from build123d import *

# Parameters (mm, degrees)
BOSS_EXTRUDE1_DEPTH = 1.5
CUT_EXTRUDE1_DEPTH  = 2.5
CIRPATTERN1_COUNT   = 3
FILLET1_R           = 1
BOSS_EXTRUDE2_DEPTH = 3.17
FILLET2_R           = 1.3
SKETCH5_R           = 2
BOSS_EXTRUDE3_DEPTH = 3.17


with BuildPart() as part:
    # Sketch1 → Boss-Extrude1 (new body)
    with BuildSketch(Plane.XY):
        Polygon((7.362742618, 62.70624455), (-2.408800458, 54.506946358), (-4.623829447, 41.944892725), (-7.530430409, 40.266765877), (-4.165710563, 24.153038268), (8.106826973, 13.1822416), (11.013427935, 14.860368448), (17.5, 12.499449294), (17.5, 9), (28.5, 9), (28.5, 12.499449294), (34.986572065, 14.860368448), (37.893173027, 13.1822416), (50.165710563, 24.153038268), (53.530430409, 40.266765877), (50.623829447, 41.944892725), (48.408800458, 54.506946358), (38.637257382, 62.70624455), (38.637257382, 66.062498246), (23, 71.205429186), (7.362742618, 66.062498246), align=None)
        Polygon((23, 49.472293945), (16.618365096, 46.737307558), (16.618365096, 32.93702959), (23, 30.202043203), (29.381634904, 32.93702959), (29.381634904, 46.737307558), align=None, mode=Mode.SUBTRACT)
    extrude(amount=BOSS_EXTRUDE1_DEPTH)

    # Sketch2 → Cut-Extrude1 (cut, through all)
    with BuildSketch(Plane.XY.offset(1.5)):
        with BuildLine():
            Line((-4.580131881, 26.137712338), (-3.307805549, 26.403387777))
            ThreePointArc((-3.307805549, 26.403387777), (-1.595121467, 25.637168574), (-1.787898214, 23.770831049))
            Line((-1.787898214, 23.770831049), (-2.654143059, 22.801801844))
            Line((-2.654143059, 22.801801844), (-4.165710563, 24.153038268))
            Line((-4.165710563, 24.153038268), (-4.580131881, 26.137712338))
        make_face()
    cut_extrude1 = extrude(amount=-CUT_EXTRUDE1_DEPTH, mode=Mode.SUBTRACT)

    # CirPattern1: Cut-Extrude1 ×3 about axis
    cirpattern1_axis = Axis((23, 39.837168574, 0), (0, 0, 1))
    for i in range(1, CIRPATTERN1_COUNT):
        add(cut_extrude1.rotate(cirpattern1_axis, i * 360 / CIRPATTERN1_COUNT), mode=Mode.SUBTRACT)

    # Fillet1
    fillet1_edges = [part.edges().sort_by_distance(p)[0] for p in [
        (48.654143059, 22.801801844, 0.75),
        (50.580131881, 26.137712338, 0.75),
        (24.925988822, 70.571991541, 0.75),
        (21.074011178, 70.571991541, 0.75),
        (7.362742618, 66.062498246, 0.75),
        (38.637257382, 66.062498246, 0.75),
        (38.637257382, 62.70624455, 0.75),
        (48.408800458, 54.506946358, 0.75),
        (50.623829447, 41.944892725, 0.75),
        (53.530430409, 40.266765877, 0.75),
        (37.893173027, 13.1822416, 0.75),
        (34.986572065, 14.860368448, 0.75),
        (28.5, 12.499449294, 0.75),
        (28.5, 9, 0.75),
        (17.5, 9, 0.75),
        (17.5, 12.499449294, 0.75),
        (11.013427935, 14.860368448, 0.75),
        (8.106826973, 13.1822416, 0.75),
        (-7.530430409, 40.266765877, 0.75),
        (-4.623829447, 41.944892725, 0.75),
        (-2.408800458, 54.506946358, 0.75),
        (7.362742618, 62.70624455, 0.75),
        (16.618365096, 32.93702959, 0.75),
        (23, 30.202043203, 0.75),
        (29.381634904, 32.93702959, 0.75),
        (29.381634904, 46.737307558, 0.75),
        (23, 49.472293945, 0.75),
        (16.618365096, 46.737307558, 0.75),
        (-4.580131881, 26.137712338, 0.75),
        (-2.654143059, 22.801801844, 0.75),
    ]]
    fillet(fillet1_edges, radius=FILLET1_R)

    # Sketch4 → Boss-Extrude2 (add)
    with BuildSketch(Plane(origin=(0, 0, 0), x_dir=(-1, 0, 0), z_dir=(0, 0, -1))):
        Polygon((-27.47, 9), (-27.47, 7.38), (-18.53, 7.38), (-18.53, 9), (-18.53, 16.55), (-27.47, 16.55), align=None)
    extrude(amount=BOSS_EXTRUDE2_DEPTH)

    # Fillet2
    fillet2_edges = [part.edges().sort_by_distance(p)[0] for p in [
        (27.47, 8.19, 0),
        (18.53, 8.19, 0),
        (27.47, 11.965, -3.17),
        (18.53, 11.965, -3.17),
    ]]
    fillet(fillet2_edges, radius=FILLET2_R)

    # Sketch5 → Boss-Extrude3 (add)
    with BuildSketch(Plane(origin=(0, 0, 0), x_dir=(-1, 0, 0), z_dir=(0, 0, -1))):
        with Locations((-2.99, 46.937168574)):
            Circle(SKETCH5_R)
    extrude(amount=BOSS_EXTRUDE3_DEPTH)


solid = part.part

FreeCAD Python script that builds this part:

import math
import FreeCAD as App
import Part
import Sketcher

V = App.Vector
Q = App.Units.Quantity


def edges_at(feature, points):
    """Names of the edges that pass closest to the given points."""
    edges = feature.Shape.Edges
    near = lambda p: min(range(len(edges)), key=lambda i: edges[i].distToShape(Part.Vertex(*p))[0])
    return sorted({f"Edge{near(p) + 1}" for p in points})

doc = App.newDocument("Part")
body = doc.addObject("PartDesign::Body", "Body")

sketch1 = body.newObject("Sketcher::SketchObject", "Sketch")
sketch1.AttachmentSupport = (doc.getObject("XY_Plane"), [""])
sketch1.MapMode = "FlatFace"
sketch1.addGeometry(Part.LineSegment(V(7.362743, 62.706245, 0), V(-2.4088, 54.506946, 0)), False)
sketch1.addGeometry(Part.LineSegment(V(-2.4088, 54.506946, 0), V(-4.623829, 41.944893, 0)), False)
sketch1.addGeometry(Part.LineSegment(V(-4.623829, 41.944893, 0), V(-7.53043, 40.266766, 0)), False)
sketch1.addGeometry(Part.LineSegment(V(-7.53043, 40.266766, 0), V(-4.165711, 24.153038, 0)), False)
sketch1.addGeometry(Part.LineSegment(V(-4.165711, 24.153038, 0), V(8.106827, 13.182242, 0)), False)
sketch1.addGeometry(Part.LineSegment(V(8.106827, 13.182242, 0), V(11.013428, 14.860368, 0)), False)
sketch1.addGeometry(Part.LineSegment(V(11.013428, 14.860368, 0), V(17.5, 12.499449, 0)), False)
sketch1.addGeometry(Part.LineSegment(V(17.5, 12.499449, 0), V(17.5, 9, 0)), False)
sketch1.addGeometry(Part.LineSegment(V(17.5, 9, 0), V(28.5, 9, 0)), False)
sketch1.addGeometry(Part.LineSegment(V(28.5, 9, 0), V(28.5, 12.499449, 0)), False)
sketch1.addGeometry(Part.LineSegment(V(28.5, 12.499449, 0), V(34.986572, 14.860368, 0)), False)
sketch1.addGeometry(Part.LineSegment(V(34.986572, 14.860368, 0), V(37.893173, 13.182242, 0)), False)
sketch1.addGeometry(Part.LineSegment(V(37.893173, 13.182242, 0), V(50.165711, 24.153038, 0)), False)
sketch1.addGeometry(Part.LineSegment(V(50.165711, 24.153038, 0), V(53.53043, 40.266766, 0)), False)
sketch1.addGeometry(Part.LineSegment(V(53.53043, 40.266766, 0), V(50.623829, 41.944893, 0)), False)
sketch1.addGeometry(Part.LineSegment(V(50.623829, 41.944893, 0), V(48.4088, 54.506946, 0)), False)
sketch1.addGeometry(Part.LineSegment(V(48.4088, 54.506946, 0), V(38.637257, 62.706245, 0)), False)
sketch1.addGeometry(Part.LineSegment(V(38.637257, 62.706245, 0), V(38.637257, 66.062498, 0)), False)
sketch1.addGeometry(Part.LineSegment(V(38.637257, 66.062498, 0), V(23, 71.205429, 0)), False)
sketch1.addGeometry(Part.LineSegment(V(23, 71.205429, 0), V(7.362743, 66.062498, 0)), False)
sketch1.addGeometry(Part.LineSegment(V(7.362743, 66.062498, 0), V(7.362743, 62.706245, 0)), False)
sketch1.addGeometry(Part.LineSegment(V(16.618365, 46.737308, 0), V(23, 49.472294, 0)), False)
sketch1.addGeometry(Part.LineSegment(V(23, 49.472294, 0), V(29.381635, 46.737308, 0)), False)
sketch1.addGeometry(Part.LineSegment(V(29.381635, 46.737308, 0), V(29.381635, 32.93703, 0)), False)
sketch1.addGeometry(Part.LineSegment(V(29.381635, 32.93703, 0), V(23, 30.202043, 0)), False)
sketch1.addGeometry(Part.LineSegment(V(23, 30.202043, 0), V(16.618365, 32.93703, 0)), False)
sketch1.addGeometry(Part.LineSegment(V(16.618365, 32.93703, 0), V(16.618365, 46.737308, 0)), False)
sketch1.addConstraint(Sketcher.Constraint("Coincident", 0, 2, 1, 1))
sketch1.addConstraint(Sketcher.Constraint("Coincident", 1, 2, 2, 1))
sketch1.addConstraint(Sketcher.Constraint("Coincident", 2, 2, 3, 1))
sketch1.addConstraint(Sketcher.Constraint("Coincident", 3, 2, 4, 1))
sketch1.addConstraint(Sketcher.Constraint("Coincident", 4, 2, 5, 1))
sketch1.addConstraint(Sketcher.Constraint("Coincident", 5, 2, 6, 1))
sketch1.addConstraint(Sketcher.Constraint("Coincident", 6, 2, 7, 1))
sketch1.addConstraint(Sketcher.Constraint("Coincident", 7, 2, 8, 1))
sketch1.addConstraint(Sketcher.Constraint("Coincident", 8, 2, 9, 1))
sketch1.addConstraint(Sketcher.Constraint("Coincident", 9, 2, 10, 1))
sketch1.addConstraint(Sketcher.Constraint("Coincident", 10, 2, 11, 1))
sketch1.addConstraint(Sketcher.Constraint("Coincident", 11, 2, 12, 1))
sketch1.addConstraint(Sketcher.Constraint("Coincident", 12, 2, 13, 1))
sketch1.addConstraint(Sketcher.Constraint("Coincident", 13, 2, 14, 1))
sketch1.addConstraint(Sketcher.Constraint("Coincident", 14, 2, 15, 1))
sketch1.addConstraint(Sketcher.Constraint("Coincident", 15, 2, 16, 1))
sketch1.addConstraint(Sketcher.Constraint("Coincident", 16, 2, 17, 1))
sketch1.addConstraint(Sketcher.Constraint("Coincident", 17, 2, 18, 1))
sketch1.addConstraint(Sketcher.Constraint("Coincident", 18, 2, 19, 1))
sketch1.addConstraint(Sketcher.Constraint("Coincident", 19, 2, 20, 1))
sketch1.addConstraint(Sketcher.Constraint("Coincident", 20, 2, 0, 1))
sketch1.addConstraint(Sketcher.Constraint("Coincident", 21, 2, 22, 1))
sketch1.addConstraint(Sketcher.Constraint("Coincident", 22, 2, 23, 1))
sketch1.addConstraint(Sketcher.Constraint("Coincident", 23, 2, 24, 1))
sketch1.addConstraint(Sketcher.Constraint("Coincident", 24, 2, 25, 1))
sketch1.addConstraint(Sketcher.Constraint("Coincident", 25, 2, 26, 1))
sketch1.addConstraint(Sketcher.Constraint("Coincident", 26, 2, 21, 1))
sketch1.addConstraint(Sketcher.Constraint("Vertical", 7))
sketch1.addConstraint(Sketcher.Constraint("Horizontal", 8))
sketch1.addConstraint(Sketcher.Constraint("Vertical", 9))
sketch1.addConstraint(Sketcher.Constraint("Vertical", 17))
sketch1.addConstraint(Sketcher.Constraint("Vertical", 20))
sketch1.addConstraint(Sketcher.Constraint("Vertical", 23))
sketch1.addConstraint(Sketcher.Constraint("Vertical", 26))
sketch1.addConstraint(Sketcher.Constraint("Parallel", 2, 5))
sketch1.addConstraint(Sketcher.Constraint("Parallel", 11, 14))
sketch1.addConstraint(Sketcher.Constraint("Parallel", 21, 24))
sketch1.addConstraint(Sketcher.Constraint("Parallel", 22, 25))
sketch1.addConstraint(Sketcher.Constraint("Horizontal", 6, 2, 9, 2))
sketch1.addConstraint(Sketcher.Constraint("Horizontal", 5, 2, 10, 2))
sketch1.addConstraint(Sketcher.Constraint("Horizontal", 4, 2, 11, 2))
sketch1.addConstraint(Sketcher.Constraint("Horizontal", 3, 2, 12, 2))
sketch1.addConstraint(Sketcher.Constraint("Horizontal", 2, 2, 13, 2))
sketch1.addConstraint(Sketcher.Constraint("Horizontal", 1, 2, 14, 2))
sketch1.addConstraint(Sketcher.Constraint("Horizontal", 0, 2, 15, 2))
sketch1.addConstraint(Sketcher.Constraint("Horizontal", 17, 2, 19, 2))
sketch1.addConstraint(Sketcher.Constraint("Horizontal", 16, 2, 20, 2))
sketch1.addConstraint(Sketcher.Constraint("Horizontal", 23, 2, 25, 2))
sketch1.addConstraint(Sketcher.Constraint("Horizontal", 22, 2, 26, 2))
sketch1.addConstraint(Sketcher.Constraint("Vertical", 18, 2, 21, 2))
sketch1.addConstraint(Sketcher.Constraint("Vertical", 21, 2, 24, 2))
sketch1.addConstraint(Sketcher.Constraint("Equal", 0, 1))
sketch1.addConstraint(Sketcher.Constraint("Equal", 3, 4))
sketch1.addConstraint(Sketcher.Constraint("Equal", 2, 5))
sketch1.addConstraint(Sketcher.Constraint("Equal", 6, 10))
sketch1.addConstraint(Sketcher.Constraint("Equal", 5, 11))
sketch1.addConstraint(Sketcher.Constraint("Equal", 4, 12))
sketch1.addConstraint(Sketcher.Constraint("Equal", 12, 13))
sketch1.addConstraint(Sketcher.Constraint("Equal", 1, 15))
sketch1.addConstraint(Sketcher.Constraint("Equal", 15, 16))
sketch1.addConstraint(Sketcher.Constraint("Equal", 13, 18))
sketch1.addConstraint(Sketcher.Constraint("Equal", 18, 19))
sketch1.addConstraint(Sketcher.Constraint("DistanceX", 8, 1, 8, 2, Q("11 mm")))
sketch1.addConstraint(Sketcher.Constraint("Angle", 0, Q("-140 deg")))
sketch1.addConstraint(Sketcher.Constraint("Angle", 1, Q("-100 deg")))
sketch1.addConstraint(Sketcher.Constraint("Angle", 2, Q("-150 deg")))
sketch1.addConstraint(Sketcher.Constraint("Angle", 6, Q("-20 deg")))
sketch1.addConstraint(Sketcher.Constraint("DistanceY", -1, 1, 7, 2, Q("9 mm")))
sketch1.addConstraint(Sketcher.Constraint("DistanceX", -1, 1, 18, 2, Q("23 mm")))
sketch1.addConstraint(Sketcher.Constraint("DistanceY", 7, 2, 7, 1, Q("3.499449 mm")))
sketch1.addConstraint(Sketcher.Constraint("DistanceX", 0, 2, -1, 1, Q("2.4088 mm")))
sketch1.addConstraint(Sketcher.Constraint("DistanceY", -1, 1, 17, 2, Q("66.062498 mm")))
sketch1.addConstraint(Sketcher.Constraint("DistanceX", 2, 2, 1, 2, Q("2.906601 mm")))
sketch1.addConstraint(Sketcher.Constraint("DistanceY", 15, 2, 16, 2, Q("8.199298 mm")))
sketch1.addConstraint(Sketcher.Constraint("Distance", 21, Q("6.943012 mm")))
sketch1.addConstraint(Sketcher.Constraint("DistanceY", 17, 1, 17, 2, Q("3.356254 mm")))
sketch1.addConstraint(Sketcher.Constraint("DistanceY", 23, 2, 23, 1, Q("13.800278 mm")))
sketch1.addConstraint(Sketcher.Constraint("DistanceX", 3, 2, -1, 1, Q("4.165711 mm")))
sketch1.addConstraint(Sketcher.Constraint("DistanceY", -1, 1, 3, 2, Q("24.153038 mm")))
sketch1.addConstraint(Sketcher.Constraint("DistanceY", -1, 1, 23, 2, Q("32.93703 mm")))
sketch1.addConstraint(Sketcher.Constraint("DistanceY", 21, 2, 16, 2, Q("13.233951 mm")))
pad1 = body.newObject("PartDesign::Pad", "Pad")
pad1.Profile = sketch1
pad1.Length = 1.5

sketch2 = body.newObject("Sketcher::SketchObject", "Sketch001")
sketch2.AttachmentSupport = (doc.getObject("XY_Plane"), [""])
sketch2.MapMode = "FlatFace"
sketch2.AttachmentOffset = App.Placement(V(0, 0, 1.5), App.Rotation())
sketch2.addGeometry(Part.LineSegment(V(-3.307806, 26.403388, 0), V(-4.580132, 26.137712, 0)), False)
sketch2.addGeometry(Part.LineSegment(V(-4.580132, 26.137712, 0), V(-4.165711, 24.153038, 0)), False)
sketch2.addGeometry(Part.LineSegment(V(-4.165711, 24.153038, 0), V(-2.654143, 22.801802, 0)), False)
sketch2.addGeometry(Part.LineSegment(V(-2.654143, 22.801802, 0), V(-1.787898, 23.770831, 0)), False)
sketch2.addGeometry(Part.ArcOfCircle(Part.Circle(V(-2.980762, 24.837169, 0), V(0, 0, 1), 1.6), math.radians(-41.794504), math.radians(101.794504)), False)
sketch2.addConstraint(Sketcher.Constraint("Coincident", 0, 2, 1, 1))
sketch2.addConstraint(Sketcher.Constraint("Coincident", 1, 2, 2, 1))
sketch2.addConstraint(Sketcher.Constraint("Coincident", 2, 2, 3, 1))
sketch2.addConstraint(Sketcher.Constraint("Tangent", 3, 2, 4, 1))
sketch2.addConstraint(Sketcher.Constraint("Tangent", 4, 2, 0, 1))
sketch2.addConstraint(Sketcher.Constraint("Perpendicular", 0, 1))
sketch2.addConstraint(Sketcher.Constraint("Perpendicular", 2, 3))
sketch2.addConstraint(Sketcher.Constraint("Equal", 1, 2))
sketch2.addConstraint(Sketcher.Constraint("Radius", 4, Q("1.6 mm")))
sketch2.addConstraint(Sketcher.Constraint("DistanceY", -1, 1, 2, 2, Q("22.801802 mm")))
sketch2.addConstraint(Sketcher.Constraint("DistanceX", 3, 2, -1, 1, Q("1.787898 mm")))
sketch2.addConstraint(Sketcher.Constraint("Distance", 0, Q("1.299768 mm")))
sketch2.addConstraint(Sketcher.Constraint("Distance", 1, Q("2.02748 mm")))
sketch2.addConstraint(Sketcher.Constraint("DistanceY", -1, 1, 4, 3, Q("24.837169 mm")))
pocket1 = body.newObject("PartDesign::Pocket", "Pocket")
pocket1.Profile = sketch2
pocket1.Type = "ThroughAll"
doc.recompute()

datumline = body.newObject("PartDesign::Line", "DatumLine")
datumline.Placement = App.Placement(V(23, 39.837169, 0), App.Rotation(V(0, 0, 1), V(0, 0, 1)))
polarpattern = body.newObject("PartDesign::PolarPattern", "PolarPattern")
polarpattern.Originals = [pocket1]
polarpattern.Axis = (datumline, [""])
polarpattern.Angle = 360
polarpattern.Occurrences = 3
body.Tip = polarpattern
doc.recompute()

fillet = body.newObject("PartDesign::Fillet", "Fillet")
fillet.Base = (polarpattern, edges_at(polarpattern, [
    (48.654, 22.802, 0.75),
    (50.58, 26.138, 0.75),
    (24.926, 70.572, 0.75),
    (21.074, 70.572, 0.75),
    (7.363, 66.062, 0.75),
    (38.637, 66.062, 0.75),
    (38.637, 62.706, 0.75),
    (48.409, 54.507, 0.75),
    (50.624, 41.945, 0.75),
    (53.53, 40.267, 0.75),
    (37.893, 13.182, 0.75),
    (34.987, 14.86, 0.75),
    (28.5, 12.499, 0.75),
    (28.5, 9, 0.75),
    (17.5, 9, 0.75),
    (17.5, 12.499, 0.75),
    (11.013, 14.86, 0.75),
    (8.107, 13.182, 0.75),
    (-7.53, 40.267, 0.75),
    (-4.624, 41.945, 0.75),
    (-2.409, 54.507, 0.75),
    (7.363, 62.706, 0.75),
    (16.618, 32.937, 0.75),
    (23, 30.202, 0.75),
    (29.382, 32.937, 0.75),
    (29.382, 46.737, 0.75),
    (23, 49.472, 0.75),
    (16.618, 46.737, 0.75),
    (-4.58, 26.138, 0.75),
    (-2.654, 22.802, 0.75),
]))
fillet.Radius = 1

sketch3 = body.newObject("Sketcher::SketchObject", "Sketch002")
sketch3.AttachmentSupport = (doc.getObject("XY_Plane"), [""])
sketch3.MapMode = "FlatFace"
sketch3.addGeometry(Part.LineSegment(V(27.47, 7.38, 0), V(18.53, 7.38, 0)), False)
sketch3.addGeometry(Part.LineSegment(V(18.53, 7.38, 0), V(18.53, 16.55, 0)), False)
sketch3.addGeometry(Part.LineSegment(V(18.53, 16.55, 0), V(27.47, 16.55, 0)), False)
sketch3.addGeometry(Part.LineSegment(V(27.47, 16.55, 0), V(27.47, 7.38, 0)), False)
sketch3.addConstraint(Sketcher.Constraint("Coincident", 0, 2, 1, 1))
sketch3.addConstraint(Sketcher.Constraint("Coincident", 1, 2, 2, 1))
sketch3.addConstraint(Sketcher.Constraint("Coincident", 2, 2, 3, 1))
sketch3.addConstraint(Sketcher.Constraint("Coincident", 3, 2, 0, 1))
sketch3.addConstraint(Sketcher.Constraint("Horizontal", 0))
sketch3.addConstraint(Sketcher.Constraint("Vertical", 1))
sketch3.addConstraint(Sketcher.Constraint("Horizontal", 2))
sketch3.addConstraint(Sketcher.Constraint("Vertical", 3))
sketch3.addConstraint(Sketcher.Constraint("DistanceX", 0, 2, 0, 1, Q("8.94 mm")))
sketch3.addConstraint(Sketcher.Constraint("DistanceY", 1, 1, 1, 2, Q("9.17 mm")))
sketch3.addConstraint(Sketcher.Constraint("DistanceX", -1, 1, 0, 2, Q("18.53 mm")))
sketch3.addConstraint(Sketcher.Constraint("DistanceY", -1, 1, 0, 2, Q("7.38 mm")))
pad2 = body.newObject("PartDesign::Pad", "Pad001")
pad2.Profile = sketch3
pad2.Length = 3.17
pad2.Reversed = True
doc.recompute()

fillet2 = body.newObject("PartDesign::Fillet", "Fillet001")
fillet2.Base = (pad2, edges_at(pad2, [
    (27.47, 8.19, 0),
    (18.53, 8.19, 0),
    (27.47, 11.965, -3.17),
    (18.53, 11.965, -3.17),
]))
fillet2.Radius = 1.3

sketch4 = body.newObject("Sketcher::SketchObject", "Sketch003")
sketch4.AttachmentSupport = (doc.getObject("XY_Plane"), [""])
sketch4.MapMode = "FlatFace"
sketch4.addGeometry(Part.Circle(V(2.99, 46.937169, 0), V(0, 0, 1), 2), False)
sketch4.addConstraint(Sketcher.Constraint("Diameter", 0, Q("4 mm")))
sketch4.addConstraint(Sketcher.Constraint("DistanceX", -1, 1, 0, 3, Q("2.99 mm")))
sketch4.addConstraint(Sketcher.Constraint("DistanceY", -1, 1, 0, 3, Q("46.937169 mm")))
pad3 = body.newObject("PartDesign::Pad", "Pad002")
pad3.Profile = sketch4
pad3.Length = 3.17
pad3.Reversed = True

doc.recompute()
